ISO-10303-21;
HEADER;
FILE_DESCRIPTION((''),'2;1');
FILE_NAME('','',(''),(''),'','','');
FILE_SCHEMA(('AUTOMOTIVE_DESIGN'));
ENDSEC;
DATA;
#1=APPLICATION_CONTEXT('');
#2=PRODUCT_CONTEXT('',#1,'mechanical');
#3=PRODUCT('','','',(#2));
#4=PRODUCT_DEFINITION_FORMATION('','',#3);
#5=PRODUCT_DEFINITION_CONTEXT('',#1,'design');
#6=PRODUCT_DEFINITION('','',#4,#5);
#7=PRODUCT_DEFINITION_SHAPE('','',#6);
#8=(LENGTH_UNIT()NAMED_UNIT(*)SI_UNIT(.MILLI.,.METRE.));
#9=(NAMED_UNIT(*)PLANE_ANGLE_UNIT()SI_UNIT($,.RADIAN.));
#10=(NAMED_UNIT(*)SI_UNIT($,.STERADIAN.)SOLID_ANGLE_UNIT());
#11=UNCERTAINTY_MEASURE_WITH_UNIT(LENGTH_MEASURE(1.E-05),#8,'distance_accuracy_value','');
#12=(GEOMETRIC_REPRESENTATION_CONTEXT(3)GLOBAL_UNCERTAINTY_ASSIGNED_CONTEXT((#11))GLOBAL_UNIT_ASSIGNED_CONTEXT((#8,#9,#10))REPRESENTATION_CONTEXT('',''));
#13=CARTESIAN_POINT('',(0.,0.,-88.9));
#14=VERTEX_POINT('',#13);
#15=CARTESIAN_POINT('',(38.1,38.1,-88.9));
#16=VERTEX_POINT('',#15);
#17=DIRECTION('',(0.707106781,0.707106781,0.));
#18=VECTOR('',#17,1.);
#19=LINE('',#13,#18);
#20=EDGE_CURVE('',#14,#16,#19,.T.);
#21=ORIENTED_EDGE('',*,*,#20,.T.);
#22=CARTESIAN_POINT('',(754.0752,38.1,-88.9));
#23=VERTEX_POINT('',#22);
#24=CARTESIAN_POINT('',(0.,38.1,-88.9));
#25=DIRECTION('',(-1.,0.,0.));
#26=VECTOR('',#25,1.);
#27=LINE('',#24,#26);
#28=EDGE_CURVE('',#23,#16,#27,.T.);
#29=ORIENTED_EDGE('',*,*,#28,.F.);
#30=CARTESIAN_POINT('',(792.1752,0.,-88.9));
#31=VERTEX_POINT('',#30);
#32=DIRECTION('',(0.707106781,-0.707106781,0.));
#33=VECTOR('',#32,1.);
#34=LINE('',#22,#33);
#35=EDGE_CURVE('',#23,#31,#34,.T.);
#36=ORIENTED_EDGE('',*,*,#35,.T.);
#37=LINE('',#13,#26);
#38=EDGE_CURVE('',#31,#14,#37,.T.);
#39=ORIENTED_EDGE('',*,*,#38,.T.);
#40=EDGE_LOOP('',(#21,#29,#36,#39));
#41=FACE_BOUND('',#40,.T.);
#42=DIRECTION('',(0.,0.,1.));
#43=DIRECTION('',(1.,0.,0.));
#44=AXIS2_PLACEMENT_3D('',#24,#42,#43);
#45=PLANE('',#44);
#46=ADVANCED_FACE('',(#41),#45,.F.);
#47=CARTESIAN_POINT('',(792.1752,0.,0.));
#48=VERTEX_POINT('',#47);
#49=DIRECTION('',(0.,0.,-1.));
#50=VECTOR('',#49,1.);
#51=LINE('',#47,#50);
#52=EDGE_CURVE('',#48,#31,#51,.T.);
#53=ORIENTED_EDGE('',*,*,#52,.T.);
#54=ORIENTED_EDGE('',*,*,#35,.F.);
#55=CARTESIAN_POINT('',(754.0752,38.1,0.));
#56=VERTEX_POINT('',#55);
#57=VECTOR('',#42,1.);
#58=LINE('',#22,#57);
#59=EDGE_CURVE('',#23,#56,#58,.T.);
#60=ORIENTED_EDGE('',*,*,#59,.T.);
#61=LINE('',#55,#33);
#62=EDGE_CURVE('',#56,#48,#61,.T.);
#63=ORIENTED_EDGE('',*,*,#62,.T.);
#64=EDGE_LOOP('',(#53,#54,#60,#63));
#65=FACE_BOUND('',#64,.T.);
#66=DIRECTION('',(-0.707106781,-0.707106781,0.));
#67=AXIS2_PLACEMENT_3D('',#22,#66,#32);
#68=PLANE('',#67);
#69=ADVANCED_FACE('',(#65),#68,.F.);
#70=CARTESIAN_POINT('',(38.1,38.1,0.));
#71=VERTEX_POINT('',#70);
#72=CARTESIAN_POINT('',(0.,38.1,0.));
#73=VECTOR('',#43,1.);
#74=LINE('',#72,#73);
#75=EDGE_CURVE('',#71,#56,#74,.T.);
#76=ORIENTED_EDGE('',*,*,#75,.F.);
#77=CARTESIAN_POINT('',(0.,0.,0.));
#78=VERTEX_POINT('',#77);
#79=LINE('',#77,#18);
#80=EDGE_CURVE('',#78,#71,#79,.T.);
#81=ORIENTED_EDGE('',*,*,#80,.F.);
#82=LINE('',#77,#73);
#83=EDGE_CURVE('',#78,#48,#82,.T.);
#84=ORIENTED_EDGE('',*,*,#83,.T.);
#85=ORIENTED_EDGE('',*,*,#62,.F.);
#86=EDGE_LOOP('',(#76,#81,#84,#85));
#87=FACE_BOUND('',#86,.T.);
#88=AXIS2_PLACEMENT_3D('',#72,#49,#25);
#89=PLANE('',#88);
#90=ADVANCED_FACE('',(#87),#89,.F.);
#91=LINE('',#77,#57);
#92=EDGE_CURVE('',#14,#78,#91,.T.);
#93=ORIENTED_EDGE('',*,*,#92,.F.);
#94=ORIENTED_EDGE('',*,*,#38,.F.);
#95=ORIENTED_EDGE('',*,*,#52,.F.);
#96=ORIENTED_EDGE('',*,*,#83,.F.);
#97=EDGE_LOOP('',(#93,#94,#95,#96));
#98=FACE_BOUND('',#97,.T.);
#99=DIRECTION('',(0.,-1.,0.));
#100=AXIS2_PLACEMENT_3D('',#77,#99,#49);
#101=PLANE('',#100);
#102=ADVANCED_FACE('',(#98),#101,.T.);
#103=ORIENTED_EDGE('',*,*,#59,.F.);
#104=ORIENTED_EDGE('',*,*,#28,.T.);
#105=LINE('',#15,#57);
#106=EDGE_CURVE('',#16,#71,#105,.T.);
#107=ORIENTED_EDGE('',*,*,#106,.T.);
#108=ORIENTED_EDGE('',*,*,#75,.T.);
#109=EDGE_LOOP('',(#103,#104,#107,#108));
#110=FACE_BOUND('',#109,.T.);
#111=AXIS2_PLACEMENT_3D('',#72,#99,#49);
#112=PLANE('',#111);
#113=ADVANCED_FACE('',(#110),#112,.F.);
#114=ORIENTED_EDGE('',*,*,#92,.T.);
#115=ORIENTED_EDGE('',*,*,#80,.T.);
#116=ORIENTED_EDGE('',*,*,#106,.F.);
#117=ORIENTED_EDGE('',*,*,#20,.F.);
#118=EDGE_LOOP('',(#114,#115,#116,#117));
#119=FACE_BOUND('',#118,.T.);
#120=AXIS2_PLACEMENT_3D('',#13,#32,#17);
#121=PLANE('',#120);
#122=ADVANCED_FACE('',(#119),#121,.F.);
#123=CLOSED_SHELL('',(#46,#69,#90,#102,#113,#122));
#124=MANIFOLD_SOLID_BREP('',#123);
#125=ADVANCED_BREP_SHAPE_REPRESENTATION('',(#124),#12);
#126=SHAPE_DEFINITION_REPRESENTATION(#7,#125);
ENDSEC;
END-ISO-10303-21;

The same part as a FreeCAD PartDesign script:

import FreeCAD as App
import Part
import Sketcher
from FreeCAD import Vector
Q = App.Units.Quantity


def add_polygon(sketch, points):
    """Adds a closed chain of lines whose ends are joined by coincident constraints."""
    first, n = sketch.GeometryCount, len(points)
    for a, b in zip(points, points[1:] + points[:1]):
        sketch.addGeometry(Part.LineSegment(App.Vector(*a, 0), App.Vector(*b, 0)), False)
    for i in range(n):
        sketch.addConstraint(Sketcher.Constraint("Coincident", first + i, 2, first + (i + 1) % n, 1))

doc = App.newDocument("Part")
body = doc.addObject("PartDesign::Body", "Body")

# Sketch on XZ plane
sketch1 = body.newObject("Sketcher::SketchObject", "Sketch")
sketch1.AttachmentSupport = (doc.getObject("XZ_Plane"), [""])
sketch1.MapMode = "FlatFace"
add_polygon(sketch1, [(0, -89), (0, 0), (792, 0), (792, -89)])  # lines 0-3
sketch1.addConstraint([
    Sketcher.Constraint("Vertical", 0),
    Sketcher.Constraint("Horizontal", 1),
    Sketcher.Constraint("Vertical", 2),
    Sketcher.Constraint("Horizontal", 3),
    Sketcher.Constraint("Coincident", 0, 2, -1, 1),
    Sketcher.Constraint("DistanceY", 0, 1, 0, 2, Q("3.5 in")),
    Sketcher.Constraint("DistanceX", 1, 1, 1, 2, Q("31.188 in")),
])
pad1 = body.newObject("PartDesign::Pad", "Pad")
pad1.Profile = sketch1
pad1.Length = Q("1.5 in")
pad1.Reversed = True

# Sketch on XY plane
sketch2 = body.newObject("Sketcher::SketchObject", "Sketch001")
sketch2.AttachmentSupport = (doc.getObject("XY_Plane"), [""])
sketch2.MapMode = "FlatFace"
add_polygon(sketch2, [(0, 0), (38, 38), (0, 38)])  # lines 0-2
add_polygon(sketch2, [(792, 0), (792, 38), (754, 38)])  # lines 3-5
sketch2.addConstraint([
    Sketcher.Constraint("Horizontal", 1),
    Sketcher.Constraint("Vertical", 2),
    Sketcher.Constraint("Vertical", 3),
    Sketcher.Constraint("Horizontal", 4),
    Sketcher.Constraint("Coincident", 2, 2, -1, 1),
    Sketcher.Constraint("PointOnObject", 5, 2, -1),
    Sketcher.Constraint("Perpendicular", 0, 5),
    Sketcher.Constraint("Horizontal", 1, 2, 3, 2),
    Sketcher.Constraint("Equal", 1, 4),
    Sketcher.Constraint("DistanceX", 1, 2, 1, 1, Q("1.5 in")),
    Sketcher.Constraint("DistanceX", -1, 1, 3, 2, Q("31.188 in")),
])
pocket1 = body.newObject("PartDesign::Pocket", "Pocket")
pocket1.Profile = sketch2
pocket1.Type = "ThroughAll"

doc.recompute()
